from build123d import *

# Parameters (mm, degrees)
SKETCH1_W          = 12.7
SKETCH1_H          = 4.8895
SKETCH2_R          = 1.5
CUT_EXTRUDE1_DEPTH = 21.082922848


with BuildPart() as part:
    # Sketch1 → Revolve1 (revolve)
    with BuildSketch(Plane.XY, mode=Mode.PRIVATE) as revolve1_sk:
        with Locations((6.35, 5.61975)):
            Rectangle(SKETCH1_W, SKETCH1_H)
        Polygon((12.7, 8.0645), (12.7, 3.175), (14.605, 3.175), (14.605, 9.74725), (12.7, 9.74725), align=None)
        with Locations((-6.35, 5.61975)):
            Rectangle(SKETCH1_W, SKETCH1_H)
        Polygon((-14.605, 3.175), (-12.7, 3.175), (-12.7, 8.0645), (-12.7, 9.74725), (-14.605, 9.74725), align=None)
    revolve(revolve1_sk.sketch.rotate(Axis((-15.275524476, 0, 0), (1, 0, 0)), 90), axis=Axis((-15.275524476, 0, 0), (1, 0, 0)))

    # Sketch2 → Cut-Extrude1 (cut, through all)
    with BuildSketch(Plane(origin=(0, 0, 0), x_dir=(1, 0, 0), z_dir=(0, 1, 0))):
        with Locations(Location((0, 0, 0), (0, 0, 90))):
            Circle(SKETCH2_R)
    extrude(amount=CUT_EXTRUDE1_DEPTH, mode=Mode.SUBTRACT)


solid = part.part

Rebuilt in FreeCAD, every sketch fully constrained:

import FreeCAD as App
import Part
import Sketcher
from FreeCAD import Vector
Q = App.Units.Quantity

doc = App.newDocument("Part")
body = doc.addObject("PartDesign::Body", "Body")

# Sketch on XY plane
sketch1 = doc.addObject("Sketcher::SketchObject", "Sketch")
body.addObject(sketch1)
sketch1.AttachmentSupport = (doc.XY_Plane, [""])
sketch1.MapMode = "FlatFace"
sketch1.addGeometry([
    Part.LineSegment(Vector(14.605, 3.175, 0), Vector(14.605, 9.74725, 0)),  # 0
    Part.LineSegment(Vector(14.605, 9.74725, 0), Vector(12.7, 9.74725, 0)),  # 1
    Part.LineSegment(Vector(12.7, 9.74725, 0), Vector(12.7, 8.0645, 0)),  # 2
    Part.LineSegment(Vector(12.7, 8.0645, 0), Vector(-12.7, 8.0645, 0)),  # 3
    Part.LineSegment(Vector(-12.7, 8.0645, 0), Vector(-12.7, 9.74725, 0)),  # 4
    Part.LineSegment(Vector(-12.7, 9.74725, 0), Vector(-14.605, 9.74725, 0)),  # 5
    Part.LineSegment(Vector(-14.605, 9.74725, 0), Vector(-14.605, 3.175, 0)),  # 6
    Part.LineSegment(Vector(-14.605, 3.175, 0), Vector(14.605, 3.175, 0)),  # 7
], False)
sketch1.addConstraint([
    Sketcher.Constraint("Coincident", 0, 2, 1, 1),
    Sketcher.Constraint("Coincident", 1, 2, 2, 1),
    Sketcher.Constraint("Coincident", 2, 2, 3, 1),
    Sketcher.Constraint("Coincident", 3, 2, 4, 1),
    Sketcher.Constraint("Coincident", 4, 2, 5, 1),
    Sketcher.Constraint("Coincident", 5, 2, 6, 1),
    Sketcher.Constraint("Coincident", 6, 2, 7, 1),
    Sketcher.Constraint("Coincident", 7, 2, 0, 1),
    Sketcher.Constraint("Vertical", 0),
    Sketcher.Constraint("Horizontal", 1),
    Sketcher.Constraint("Vertical", 2),
    Sketcher.Constraint("Horizontal", 3),
    Sketcher.Constraint("Vertical", 4),
    Sketcher.Constraint("Horizontal", 5),
    Sketcher.Constraint("Vertical", 6),
    Sketcher.Constraint("Horizontal", 7),
    Sketcher.Constraint("Symmetric", 1, 2, 4, 2, -2),
    Sketcher.Constraint("Equal", 1, 5),
    Sketcher.Constraint("DistanceX", 3, 2, 3, 1, Q("1 in")),
    Sketcher.Constraint("DistanceX", 7, 1, 7, 2, Q("1.15 in")),
    Sketcher.Constraint("DistanceY", -1, 1, 6, 2, Q("0.125 in")),
    Sketcher.Constraint("DistanceY", -1, 1, 2, 2, Q("0.3175 in")),
    Sketcher.Constraint("DistanceY", 0, 1, 0, 2, 6.57225),
])
revolution = doc.addObject("PartDesign::Revolution", "Revolution")
body.addObject(revolution)
revolution.Profile = sketch1
revolution.ReferenceAxis = (sketch1, ["H_Axis"])
revolution.Angle = 360

# Sketch on XZ plane
sketch2 = doc.addObject("Sketcher::SketchObject", "Sketch001")
body.addObject(sketch2)
sketch2.AttachmentSupport = (doc.XZ_Plane, [""])
sketch2.MapMode = "FlatFace"
sketch2.addGeometry(Part.Circle(Vector(0, 0, 0), Vector(0, 0, 1), 1.5), False)
sketch2.addConstraint([
    Sketcher.Constraint("Coincident", 0, 3, -1, 1),
    Sketcher.Constraint("Diameter", 0, 3.0),
])
pocket1 = doc.addObject("PartDesign::Pocket", "Pocket")
body.addObject(pocket1)
pocket1.Profile = sketch2
pocket1.Type = "ThroughAll"

doc.recompute()
